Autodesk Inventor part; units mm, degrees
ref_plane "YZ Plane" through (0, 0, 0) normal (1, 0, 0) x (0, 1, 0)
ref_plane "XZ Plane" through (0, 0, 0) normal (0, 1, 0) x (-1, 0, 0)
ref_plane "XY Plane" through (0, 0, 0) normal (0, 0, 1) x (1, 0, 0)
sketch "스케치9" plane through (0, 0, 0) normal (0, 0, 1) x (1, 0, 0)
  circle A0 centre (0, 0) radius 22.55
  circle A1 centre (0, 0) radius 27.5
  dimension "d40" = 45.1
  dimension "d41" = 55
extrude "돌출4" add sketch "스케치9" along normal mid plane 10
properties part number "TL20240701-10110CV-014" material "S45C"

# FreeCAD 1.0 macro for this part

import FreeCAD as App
import Part
import Sketcher
from FreeCAD import Vector
Q = App.Units.Quantity

doc = App.newDocument("Part")
body = doc.addObject("PartDesign::Body", "Body")

sketch1 = body.newObject("Sketcher::SketchObject", "Sketch")
sketch1.AttachmentSupport = (doc.getObject("XY_Plane"), [""])
sketch1.MapMode = "FlatFace"
sketch1.addGeometry(Part.Circle(Vector(0, 0, 0), Vector(0, 0, 1), 28), False)
sketch1.addGeometry(Part.Circle(Vector(0, 0, 0), Vector(0, 0, 1), 23), False)
sketch1.addConstraint(Sketcher.Constraint("Coincident", 0, 3, -1, 1))
sketch1.addConstraint(Sketcher.Constraint("Coincident", 1, 3, -1, 1))
sketch1.addConstraint(Sketcher.Constraint("Diameter", 0, Q("55 mm")))
sketch1.addConstraint(Sketcher.Constraint("Diameter", 1, Q("45.1 mm")))
pad1 = body.newObject("PartDesign::Pad", "Pad")
pad1.Profile = sketch1
pad1.Length = 10
pad1.Midplane = True

doc.recompute()
